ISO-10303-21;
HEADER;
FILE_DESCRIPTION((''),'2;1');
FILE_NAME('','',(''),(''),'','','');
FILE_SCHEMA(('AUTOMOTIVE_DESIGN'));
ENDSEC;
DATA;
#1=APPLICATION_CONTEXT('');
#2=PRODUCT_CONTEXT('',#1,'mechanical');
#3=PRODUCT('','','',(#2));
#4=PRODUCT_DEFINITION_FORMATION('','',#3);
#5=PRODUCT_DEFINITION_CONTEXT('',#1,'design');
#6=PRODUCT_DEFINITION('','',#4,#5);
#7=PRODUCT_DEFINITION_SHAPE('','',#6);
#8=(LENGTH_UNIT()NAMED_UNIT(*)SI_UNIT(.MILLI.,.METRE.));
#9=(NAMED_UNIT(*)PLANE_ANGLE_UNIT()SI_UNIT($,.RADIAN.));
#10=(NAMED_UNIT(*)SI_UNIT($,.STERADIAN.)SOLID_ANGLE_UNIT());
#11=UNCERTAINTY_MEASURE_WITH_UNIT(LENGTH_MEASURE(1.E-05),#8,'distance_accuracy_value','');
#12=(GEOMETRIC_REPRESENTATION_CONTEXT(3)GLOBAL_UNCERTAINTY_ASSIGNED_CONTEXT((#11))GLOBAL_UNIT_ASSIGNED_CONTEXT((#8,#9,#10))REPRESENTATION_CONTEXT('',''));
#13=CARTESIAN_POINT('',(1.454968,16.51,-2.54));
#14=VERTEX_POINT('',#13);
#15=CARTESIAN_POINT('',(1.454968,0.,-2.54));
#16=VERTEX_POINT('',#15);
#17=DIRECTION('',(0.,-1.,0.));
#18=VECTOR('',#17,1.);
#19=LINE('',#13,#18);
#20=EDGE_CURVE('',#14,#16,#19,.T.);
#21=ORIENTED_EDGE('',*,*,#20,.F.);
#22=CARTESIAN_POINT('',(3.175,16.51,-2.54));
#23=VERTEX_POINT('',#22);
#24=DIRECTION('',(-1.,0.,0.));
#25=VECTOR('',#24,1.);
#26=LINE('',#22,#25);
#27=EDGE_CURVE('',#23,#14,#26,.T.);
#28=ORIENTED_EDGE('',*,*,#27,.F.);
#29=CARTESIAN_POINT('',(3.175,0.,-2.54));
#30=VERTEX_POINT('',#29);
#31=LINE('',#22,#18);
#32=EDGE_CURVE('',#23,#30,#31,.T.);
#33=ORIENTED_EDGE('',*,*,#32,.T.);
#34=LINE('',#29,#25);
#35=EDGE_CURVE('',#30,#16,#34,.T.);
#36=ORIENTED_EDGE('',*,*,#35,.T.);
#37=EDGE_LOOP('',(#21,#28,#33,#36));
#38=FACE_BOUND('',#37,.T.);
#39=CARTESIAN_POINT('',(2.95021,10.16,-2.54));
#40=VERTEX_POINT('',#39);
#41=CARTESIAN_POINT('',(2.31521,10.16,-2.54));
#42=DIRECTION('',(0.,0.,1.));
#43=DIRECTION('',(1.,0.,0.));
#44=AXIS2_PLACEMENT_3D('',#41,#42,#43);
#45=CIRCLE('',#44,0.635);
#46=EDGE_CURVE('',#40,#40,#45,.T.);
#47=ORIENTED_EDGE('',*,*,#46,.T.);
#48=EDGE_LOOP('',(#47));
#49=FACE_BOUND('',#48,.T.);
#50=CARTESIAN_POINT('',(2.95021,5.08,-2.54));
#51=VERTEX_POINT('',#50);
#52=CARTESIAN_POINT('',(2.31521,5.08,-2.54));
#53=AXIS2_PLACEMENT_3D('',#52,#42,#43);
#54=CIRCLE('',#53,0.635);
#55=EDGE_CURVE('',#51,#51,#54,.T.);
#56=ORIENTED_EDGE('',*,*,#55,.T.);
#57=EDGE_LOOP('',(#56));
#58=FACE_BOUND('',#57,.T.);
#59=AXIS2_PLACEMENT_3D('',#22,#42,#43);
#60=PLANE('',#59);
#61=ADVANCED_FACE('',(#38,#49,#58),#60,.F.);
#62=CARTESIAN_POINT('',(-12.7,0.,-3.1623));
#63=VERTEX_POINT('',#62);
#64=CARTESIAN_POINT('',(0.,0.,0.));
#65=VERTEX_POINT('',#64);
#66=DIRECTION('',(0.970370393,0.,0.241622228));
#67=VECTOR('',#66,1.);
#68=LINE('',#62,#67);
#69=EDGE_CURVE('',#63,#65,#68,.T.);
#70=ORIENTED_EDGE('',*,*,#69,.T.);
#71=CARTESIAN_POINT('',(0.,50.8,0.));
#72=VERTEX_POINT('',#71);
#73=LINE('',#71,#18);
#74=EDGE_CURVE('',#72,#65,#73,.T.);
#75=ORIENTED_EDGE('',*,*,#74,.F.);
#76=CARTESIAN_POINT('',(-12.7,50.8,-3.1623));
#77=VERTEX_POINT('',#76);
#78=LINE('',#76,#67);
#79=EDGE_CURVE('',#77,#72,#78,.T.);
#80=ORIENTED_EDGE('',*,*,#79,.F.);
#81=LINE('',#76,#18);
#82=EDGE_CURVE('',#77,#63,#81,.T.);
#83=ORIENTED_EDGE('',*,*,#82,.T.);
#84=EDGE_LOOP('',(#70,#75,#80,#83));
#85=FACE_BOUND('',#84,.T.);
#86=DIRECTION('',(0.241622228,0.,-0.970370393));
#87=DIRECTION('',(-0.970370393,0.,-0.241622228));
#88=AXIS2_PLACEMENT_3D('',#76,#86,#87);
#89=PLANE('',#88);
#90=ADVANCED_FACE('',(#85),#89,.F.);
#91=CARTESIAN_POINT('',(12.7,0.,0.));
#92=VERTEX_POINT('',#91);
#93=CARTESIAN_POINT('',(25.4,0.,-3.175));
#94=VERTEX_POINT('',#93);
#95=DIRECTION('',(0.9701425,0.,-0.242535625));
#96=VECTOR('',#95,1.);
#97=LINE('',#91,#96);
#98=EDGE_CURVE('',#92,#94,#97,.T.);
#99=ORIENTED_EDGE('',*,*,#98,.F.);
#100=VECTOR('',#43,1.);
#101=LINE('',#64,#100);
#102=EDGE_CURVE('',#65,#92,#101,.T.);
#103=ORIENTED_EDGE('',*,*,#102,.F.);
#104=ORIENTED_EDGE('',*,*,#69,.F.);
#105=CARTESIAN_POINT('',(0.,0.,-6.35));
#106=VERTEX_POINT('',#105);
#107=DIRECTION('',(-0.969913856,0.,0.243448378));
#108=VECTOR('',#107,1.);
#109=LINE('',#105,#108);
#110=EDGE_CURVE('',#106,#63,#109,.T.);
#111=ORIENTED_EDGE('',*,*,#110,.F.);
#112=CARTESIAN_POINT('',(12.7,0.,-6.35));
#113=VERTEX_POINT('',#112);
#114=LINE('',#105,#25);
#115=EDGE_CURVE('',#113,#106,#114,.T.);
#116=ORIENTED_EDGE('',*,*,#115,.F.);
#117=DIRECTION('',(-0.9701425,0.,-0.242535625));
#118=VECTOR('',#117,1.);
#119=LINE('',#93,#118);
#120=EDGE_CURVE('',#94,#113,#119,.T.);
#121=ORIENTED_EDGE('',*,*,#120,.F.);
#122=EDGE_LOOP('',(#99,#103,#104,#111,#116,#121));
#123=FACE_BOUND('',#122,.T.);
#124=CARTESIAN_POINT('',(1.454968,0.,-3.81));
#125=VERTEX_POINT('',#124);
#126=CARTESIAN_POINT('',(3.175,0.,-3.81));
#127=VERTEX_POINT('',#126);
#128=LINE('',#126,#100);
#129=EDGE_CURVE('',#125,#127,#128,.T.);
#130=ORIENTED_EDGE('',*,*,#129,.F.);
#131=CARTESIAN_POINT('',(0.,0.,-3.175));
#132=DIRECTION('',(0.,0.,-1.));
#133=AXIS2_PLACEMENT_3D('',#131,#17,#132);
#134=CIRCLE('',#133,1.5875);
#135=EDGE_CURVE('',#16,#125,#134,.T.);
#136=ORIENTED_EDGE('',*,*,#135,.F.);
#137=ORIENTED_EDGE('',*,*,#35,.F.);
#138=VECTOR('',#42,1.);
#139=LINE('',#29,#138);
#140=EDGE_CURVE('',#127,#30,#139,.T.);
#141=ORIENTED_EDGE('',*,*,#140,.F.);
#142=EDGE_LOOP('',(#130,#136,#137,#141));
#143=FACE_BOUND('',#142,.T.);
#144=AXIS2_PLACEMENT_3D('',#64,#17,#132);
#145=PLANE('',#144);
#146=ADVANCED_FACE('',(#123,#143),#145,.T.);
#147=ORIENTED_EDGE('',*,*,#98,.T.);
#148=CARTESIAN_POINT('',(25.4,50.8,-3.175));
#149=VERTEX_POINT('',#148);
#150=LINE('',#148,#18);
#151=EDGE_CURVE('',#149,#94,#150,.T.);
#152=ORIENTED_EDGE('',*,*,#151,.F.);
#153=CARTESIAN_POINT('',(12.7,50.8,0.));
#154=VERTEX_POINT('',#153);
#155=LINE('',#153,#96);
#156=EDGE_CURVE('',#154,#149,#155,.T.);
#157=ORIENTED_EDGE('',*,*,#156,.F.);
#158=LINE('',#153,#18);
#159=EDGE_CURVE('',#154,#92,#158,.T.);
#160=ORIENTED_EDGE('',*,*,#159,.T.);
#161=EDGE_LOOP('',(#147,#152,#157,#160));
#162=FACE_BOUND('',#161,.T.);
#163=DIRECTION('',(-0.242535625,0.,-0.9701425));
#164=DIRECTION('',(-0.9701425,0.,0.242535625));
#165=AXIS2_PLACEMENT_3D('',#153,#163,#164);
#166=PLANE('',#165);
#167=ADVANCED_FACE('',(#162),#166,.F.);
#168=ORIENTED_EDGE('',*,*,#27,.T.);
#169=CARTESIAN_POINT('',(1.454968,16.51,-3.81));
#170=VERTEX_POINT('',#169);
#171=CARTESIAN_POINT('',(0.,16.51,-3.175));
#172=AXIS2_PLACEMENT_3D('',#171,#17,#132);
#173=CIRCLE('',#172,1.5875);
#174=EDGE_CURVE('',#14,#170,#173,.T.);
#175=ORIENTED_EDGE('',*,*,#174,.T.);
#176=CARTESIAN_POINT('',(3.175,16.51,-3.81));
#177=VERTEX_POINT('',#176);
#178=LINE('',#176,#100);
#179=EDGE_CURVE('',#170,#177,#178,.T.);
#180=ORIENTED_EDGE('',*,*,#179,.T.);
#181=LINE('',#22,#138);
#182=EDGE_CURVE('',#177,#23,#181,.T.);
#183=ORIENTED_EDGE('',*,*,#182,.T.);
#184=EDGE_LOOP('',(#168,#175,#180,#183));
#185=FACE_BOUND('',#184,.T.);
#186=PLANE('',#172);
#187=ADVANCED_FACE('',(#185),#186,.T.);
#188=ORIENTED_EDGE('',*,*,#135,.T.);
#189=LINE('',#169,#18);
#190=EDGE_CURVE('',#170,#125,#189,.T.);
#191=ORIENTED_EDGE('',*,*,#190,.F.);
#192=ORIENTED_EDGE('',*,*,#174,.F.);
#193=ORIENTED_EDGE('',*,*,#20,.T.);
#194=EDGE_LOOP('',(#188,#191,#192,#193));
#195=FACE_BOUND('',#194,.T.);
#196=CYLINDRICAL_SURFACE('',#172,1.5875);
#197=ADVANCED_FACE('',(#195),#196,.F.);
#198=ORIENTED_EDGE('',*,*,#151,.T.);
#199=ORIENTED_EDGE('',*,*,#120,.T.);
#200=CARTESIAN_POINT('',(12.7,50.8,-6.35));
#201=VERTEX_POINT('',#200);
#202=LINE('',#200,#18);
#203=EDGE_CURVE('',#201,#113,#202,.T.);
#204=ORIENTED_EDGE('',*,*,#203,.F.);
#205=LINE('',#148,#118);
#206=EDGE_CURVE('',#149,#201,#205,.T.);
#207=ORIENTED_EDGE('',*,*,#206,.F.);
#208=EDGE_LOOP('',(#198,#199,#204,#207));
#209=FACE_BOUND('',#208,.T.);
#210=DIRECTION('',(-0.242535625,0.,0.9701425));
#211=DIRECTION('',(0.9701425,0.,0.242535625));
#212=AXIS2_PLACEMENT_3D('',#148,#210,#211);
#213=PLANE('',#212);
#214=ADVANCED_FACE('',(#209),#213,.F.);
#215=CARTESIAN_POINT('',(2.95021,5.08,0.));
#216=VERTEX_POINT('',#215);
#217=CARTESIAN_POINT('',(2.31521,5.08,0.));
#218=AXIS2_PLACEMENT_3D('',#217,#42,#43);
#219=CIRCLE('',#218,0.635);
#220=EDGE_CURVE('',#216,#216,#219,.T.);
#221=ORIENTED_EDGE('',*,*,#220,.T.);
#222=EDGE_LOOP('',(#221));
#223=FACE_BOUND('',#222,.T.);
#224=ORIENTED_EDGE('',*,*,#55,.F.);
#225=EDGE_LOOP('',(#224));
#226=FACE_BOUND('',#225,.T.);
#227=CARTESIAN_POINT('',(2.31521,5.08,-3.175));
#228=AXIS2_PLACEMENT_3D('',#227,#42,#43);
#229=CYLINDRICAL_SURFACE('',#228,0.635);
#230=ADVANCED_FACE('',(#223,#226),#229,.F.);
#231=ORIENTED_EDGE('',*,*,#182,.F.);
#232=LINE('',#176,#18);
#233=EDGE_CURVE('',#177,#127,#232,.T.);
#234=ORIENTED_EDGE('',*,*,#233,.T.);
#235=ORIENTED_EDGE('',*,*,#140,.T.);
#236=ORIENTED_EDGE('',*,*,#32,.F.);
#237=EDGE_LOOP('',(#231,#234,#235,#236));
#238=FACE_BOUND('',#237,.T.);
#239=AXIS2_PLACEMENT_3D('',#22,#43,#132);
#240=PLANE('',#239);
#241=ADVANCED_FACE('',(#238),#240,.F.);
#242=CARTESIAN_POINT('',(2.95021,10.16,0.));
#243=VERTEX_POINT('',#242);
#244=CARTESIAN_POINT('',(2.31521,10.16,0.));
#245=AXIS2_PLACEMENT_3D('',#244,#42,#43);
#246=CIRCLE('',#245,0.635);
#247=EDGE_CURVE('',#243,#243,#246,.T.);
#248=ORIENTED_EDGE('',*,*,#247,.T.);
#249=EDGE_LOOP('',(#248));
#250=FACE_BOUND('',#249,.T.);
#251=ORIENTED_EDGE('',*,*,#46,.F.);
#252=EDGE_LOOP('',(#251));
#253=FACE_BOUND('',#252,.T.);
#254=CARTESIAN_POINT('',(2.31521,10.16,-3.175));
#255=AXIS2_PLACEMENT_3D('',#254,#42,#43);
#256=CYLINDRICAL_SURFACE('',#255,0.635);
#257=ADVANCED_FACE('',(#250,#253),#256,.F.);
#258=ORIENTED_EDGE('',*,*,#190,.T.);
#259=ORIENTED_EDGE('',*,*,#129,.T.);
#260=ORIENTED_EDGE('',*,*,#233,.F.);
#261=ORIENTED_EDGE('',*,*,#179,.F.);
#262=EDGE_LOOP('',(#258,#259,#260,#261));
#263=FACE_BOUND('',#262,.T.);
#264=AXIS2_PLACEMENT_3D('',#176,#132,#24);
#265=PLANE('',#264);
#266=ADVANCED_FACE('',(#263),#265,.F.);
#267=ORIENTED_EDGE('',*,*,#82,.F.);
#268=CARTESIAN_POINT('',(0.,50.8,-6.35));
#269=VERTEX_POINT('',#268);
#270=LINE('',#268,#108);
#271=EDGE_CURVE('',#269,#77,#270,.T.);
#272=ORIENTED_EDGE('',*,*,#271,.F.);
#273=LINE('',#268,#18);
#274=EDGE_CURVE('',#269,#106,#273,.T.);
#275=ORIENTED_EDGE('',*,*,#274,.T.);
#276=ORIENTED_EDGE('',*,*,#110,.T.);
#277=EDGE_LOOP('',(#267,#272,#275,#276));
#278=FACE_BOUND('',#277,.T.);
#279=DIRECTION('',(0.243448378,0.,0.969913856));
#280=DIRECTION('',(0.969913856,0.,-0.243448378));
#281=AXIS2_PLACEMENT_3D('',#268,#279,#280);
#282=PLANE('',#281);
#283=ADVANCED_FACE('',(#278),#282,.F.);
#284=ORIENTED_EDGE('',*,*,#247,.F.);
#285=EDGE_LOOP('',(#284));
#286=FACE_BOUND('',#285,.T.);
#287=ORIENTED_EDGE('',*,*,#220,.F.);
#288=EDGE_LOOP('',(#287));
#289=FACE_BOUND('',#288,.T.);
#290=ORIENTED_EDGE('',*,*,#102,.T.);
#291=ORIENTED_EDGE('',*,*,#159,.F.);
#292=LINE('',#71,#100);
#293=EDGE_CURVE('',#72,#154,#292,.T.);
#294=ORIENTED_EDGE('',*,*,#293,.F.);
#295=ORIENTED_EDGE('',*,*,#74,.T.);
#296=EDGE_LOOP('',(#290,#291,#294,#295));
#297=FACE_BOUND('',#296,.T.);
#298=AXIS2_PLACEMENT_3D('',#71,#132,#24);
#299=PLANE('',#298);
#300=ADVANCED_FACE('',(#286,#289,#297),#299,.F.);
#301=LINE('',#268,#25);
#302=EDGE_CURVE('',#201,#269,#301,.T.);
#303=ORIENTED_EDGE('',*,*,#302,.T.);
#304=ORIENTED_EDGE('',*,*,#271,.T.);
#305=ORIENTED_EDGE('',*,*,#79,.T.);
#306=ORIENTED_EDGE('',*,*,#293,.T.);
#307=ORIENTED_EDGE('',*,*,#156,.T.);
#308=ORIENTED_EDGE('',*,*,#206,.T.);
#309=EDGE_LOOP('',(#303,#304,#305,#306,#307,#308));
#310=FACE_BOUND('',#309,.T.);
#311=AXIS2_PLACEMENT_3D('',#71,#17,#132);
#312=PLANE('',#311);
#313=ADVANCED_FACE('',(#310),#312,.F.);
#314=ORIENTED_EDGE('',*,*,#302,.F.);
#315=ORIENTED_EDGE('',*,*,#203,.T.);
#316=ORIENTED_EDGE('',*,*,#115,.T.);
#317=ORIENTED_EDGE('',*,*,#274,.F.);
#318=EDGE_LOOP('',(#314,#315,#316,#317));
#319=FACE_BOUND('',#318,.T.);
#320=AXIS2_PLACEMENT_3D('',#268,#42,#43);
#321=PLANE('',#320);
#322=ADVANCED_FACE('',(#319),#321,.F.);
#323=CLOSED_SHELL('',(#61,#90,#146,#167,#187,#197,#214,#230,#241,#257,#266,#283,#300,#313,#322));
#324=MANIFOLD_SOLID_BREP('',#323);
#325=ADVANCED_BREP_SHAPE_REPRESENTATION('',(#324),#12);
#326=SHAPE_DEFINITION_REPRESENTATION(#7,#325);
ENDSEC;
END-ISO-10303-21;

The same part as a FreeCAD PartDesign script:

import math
import FreeCAD as App
import Part
import Sketcher
from FreeCAD import Vector
Q = App.Units.Quantity

doc = App.newDocument("Part")
body = doc.addObject("PartDesign::Body", "Body")

# Sketch on XZ plane
sketch1 = body.newObject("Sketcher::SketchObject", "Sketch")
sketch1.AttachmentSupport = (doc.getObject("XZ_Plane"), [""])
sketch1.MapMode = "FlatFace"
sketch1.addGeometry([
    Part.LineSegment(Vector(0, -6, 0), Vector(-13, -3, 0)),  # 0
    Part.LineSegment(Vector(-13, -3, 0), Vector(0, 0, 0)),  # 1
    Part.LineSegment(Vector(0, 0, 0), Vector(13, 0, 0)),  # 2
    Part.LineSegment(Vector(13, 0, 0), Vector(25, -3, 0)),  # 3
    Part.LineSegment(Vector(25, -3, 0), Vector(13, -6, 0)),  # 4
    Part.LineSegment(Vector(13, -6, 0), Vector(0, -6, 0)),  # 5
], False)
sketch1.addConstraint([
    Sketcher.Constraint("Coincident", 0, 2, 1, 1),
    Sketcher.Constraint("Coincident", 1, 2, 2, 1),
    Sketcher.Constraint("Coincident", 2, 2, 3, 1),
    Sketcher.Constraint("Coincident", 3, 2, 4, 1),
    Sketcher.Constraint("Coincident", 4, 2, 5, 1),
    Sketcher.Constraint("Coincident", 5, 2, 0, 1),
    Sketcher.Constraint("Horizontal", 2),
    Sketcher.Constraint("Horizontal", 5),
    Sketcher.Constraint("Coincident", 1, 2, -1, 1),
    Sketcher.Constraint("PointOnObject", 5, 2, -2),
    Sketcher.Constraint("Vertical", 2, 2, 4, 2),
    Sketcher.Constraint("Equal", 3, 4),
    Sketcher.Constraint("DistanceX", 2, 1, 2, 2, Q("0.5 in")),
    Sketcher.Constraint("DistanceX", -1, 1, 3, 2, Q("1 in")),
    Sketcher.Constraint("DistanceX", 0, 2, 2, 2, Q("1 in")),
    Sketcher.Constraint("DistanceY", 4, 2, -1, 1, Q("0.25 in")),
    Sketcher.Constraint("DistanceY", 0, 2, -1, 1, Q("0.1245 in")),
])
pad1 = body.newObject("PartDesign::Pad", "Pad")
pad1.Profile = sketch1
pad1.Length = Q("2 in")
pad1.Reversed = True

# Sketch on XZ plane
sketch2 = body.newObject("Sketcher::SketchObject", "Sketch001")
sketch2.AttachmentSupport = (doc.getObject("XZ_Plane"), [""])
sketch2.MapMode = "FlatFace"
sketch2.addGeometry([
    Part.LineSegment(Vector(3.2, -3.8, 0), Vector(3.2, -2.5, 0)),
    Part.LineSegment(Vector(3.2, -2.5, 0), Vector(1.5, -2.5, 0)),
    Part.ArcOfCircle(Part.Circle(Vector(0, -3.2, 0), Vector(0, 0, 1), 1.6), math.radians(24), math.radians(336)),
    Part.LineSegment(Vector(1.5, -3.8, 0), Vector(3.2, -3.8, 0)),
], False)
sketch2.addConstraint([
    Sketcher.Constraint("Coincident", 0, 2, 1, 1),
    Sketcher.Constraint("Coincident", 1, 2, 2, 1),
    Sketcher.Constraint("Coincident", 2, 2, 3, 1),
    Sketcher.Constraint("Coincident", 3, 2, 0, 1),
    Sketcher.Constraint("Vertical", 0),
    Sketcher.Constraint("Horizontal", 1),
    Sketcher.Constraint("Horizontal", 3),
    Sketcher.Constraint("PointOnObject", 2, 3, -2),
    Sketcher.Constraint("Vertical", 1, 2, 2, 2),
    Sketcher.Constraint("Radius", 2, Q("0.0625 in")),
    Sketcher.Constraint("DistanceY", 0, 1, 0, 2, Q("0.05 in")),
    Sketcher.Constraint("DistanceY", 0, 2, -1, 1, Q("0.1 in")),
    Sketcher.Constraint("DistanceX", -1, 1, 0, 2, Q("0.125 in")),
])
pocket1 = body.newObject("PartDesign::Pocket", "Pocket")
pocket1.Profile = sketch2
pocket1.Length = Q("0.65 in")

# Sketch on XY plane
sketch3 = body.newObject("Sketcher::SketchObject", "Sketch002")
sketch3.AttachmentSupport = (doc.getObject("XY_Plane"), [""])
sketch3.MapMode = "FlatFace"
sketch3.addGeometry([
    Part.Circle(Vector(2.3, 5.1, 0), Vector(0, 0, 1), 0.6),
    Part.Circle(Vector(2.3, 10.2, 0), Vector(0, 0, 1), 0.6),
], False)
sketch3.addConstraint([
    Sketcher.Constraint("Equal", 0, 1),
    Sketcher.Constraint("Vertical", 0, 3, 1, 3),
    Sketcher.Constraint("Diameter", 0, Q("0.05 in")),
    Sketcher.Constraint("DistanceY", -1, 1, 0, 3, Q("0.2 in")),
    Sketcher.Constraint("DistanceY", -1, 1, 1, 3, Q("0.4 in")),
    Sketcher.Constraint("DistanceX", -1, 1, 0, 3, Q("2.31521 mm")),
])
pocket2 = body.newObject("PartDesign::Pocket", "Pocket001")
pocket2.Profile = sketch3
pocket2.Length = Q("0.125 in")

doc.recompute()
